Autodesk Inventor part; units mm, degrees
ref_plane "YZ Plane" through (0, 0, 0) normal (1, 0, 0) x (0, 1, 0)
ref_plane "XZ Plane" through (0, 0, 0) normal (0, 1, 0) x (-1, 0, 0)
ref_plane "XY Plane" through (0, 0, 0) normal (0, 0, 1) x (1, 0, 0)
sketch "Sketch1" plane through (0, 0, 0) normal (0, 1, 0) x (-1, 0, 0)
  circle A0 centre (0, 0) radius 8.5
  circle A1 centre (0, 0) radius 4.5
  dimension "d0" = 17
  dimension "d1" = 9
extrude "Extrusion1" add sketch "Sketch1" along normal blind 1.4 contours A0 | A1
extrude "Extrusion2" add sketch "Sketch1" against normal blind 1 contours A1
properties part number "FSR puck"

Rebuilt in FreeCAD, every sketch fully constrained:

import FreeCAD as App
import Part
import Sketcher
Q = App.Units.Quantity

doc = App.newDocument("Part")
params = doc.addObject("Spreadsheet::Sheet", "Params")
for row, (alias, value) in enumerate([
    ("sketch1_diameter", "17 mm"),
    ("pad1_length", "1.4 mm"),
    ("sketch2_diameter", "9 mm"),
    ("pad2_length", "1 mm"),
], start=1):
    params.set(f"A{row}", alias)
    params.set(f"B{row}", "=" + value)
    params.setAlias(f"B{row}", alias)

body = doc.addObject("PartDesign::Body", "Body")

# Sketch on XZ plane
sketch1 = doc.addObject("Sketcher::SketchObject", "Sketch")
body.addObject(sketch1)
sketch1.AttachmentSupport = (doc.XZ_Plane, [""])
sketch1.MapMode = "FlatFace"
sketch1.addGeometry(Part.Circle(App.Vector(0, 0, 0), App.Vector(0, 0, 1), 8), False)
sketch1.addConstraint([
    Sketcher.Constraint("Coincident", 0, 3, -1, 1),
    Sketcher.Constraint("Diameter", 0, Q("17 mm")),
])
sketch1.setExpression("Constraints[1]", "Params.sketch1_diameter")
pad1 = doc.addObject("PartDesign::Pad", "Pad")
body.addObject(pad1)
pad1.Profile = sketch1
pad1.setExpression("Length", "Params.pad1_length")
pad1.Reversed = True

# Sketch on XZ plane
sketch2 = doc.addObject("Sketcher::SketchObject", "Sketch001")
body.addObject(sketch2)
sketch2.AttachmentSupport = (doc.XZ_Plane, [""])
sketch2.MapMode = "FlatFace"
sketch2.addGeometry(Part.Circle(App.Vector(0, 0, 0), App.Vector(0, 0, 1), 4.5), False)
sketch2.addConstraint([
    Sketcher.Constraint("Coincident", 0, 3, -1, 1),
    Sketcher.Constraint("Diameter", 0, Q("9 mm")),
])
sketch2.setExpression("Constraints[1]", "Params.sketch2_diameter")
pad2 = doc.addObject("PartDesign::Pad", "Pad001")
body.addObject(pad2)
pad2.Profile = sketch2
pad2.setExpression("Length", "Params.pad2_length")

doc.recompute()
